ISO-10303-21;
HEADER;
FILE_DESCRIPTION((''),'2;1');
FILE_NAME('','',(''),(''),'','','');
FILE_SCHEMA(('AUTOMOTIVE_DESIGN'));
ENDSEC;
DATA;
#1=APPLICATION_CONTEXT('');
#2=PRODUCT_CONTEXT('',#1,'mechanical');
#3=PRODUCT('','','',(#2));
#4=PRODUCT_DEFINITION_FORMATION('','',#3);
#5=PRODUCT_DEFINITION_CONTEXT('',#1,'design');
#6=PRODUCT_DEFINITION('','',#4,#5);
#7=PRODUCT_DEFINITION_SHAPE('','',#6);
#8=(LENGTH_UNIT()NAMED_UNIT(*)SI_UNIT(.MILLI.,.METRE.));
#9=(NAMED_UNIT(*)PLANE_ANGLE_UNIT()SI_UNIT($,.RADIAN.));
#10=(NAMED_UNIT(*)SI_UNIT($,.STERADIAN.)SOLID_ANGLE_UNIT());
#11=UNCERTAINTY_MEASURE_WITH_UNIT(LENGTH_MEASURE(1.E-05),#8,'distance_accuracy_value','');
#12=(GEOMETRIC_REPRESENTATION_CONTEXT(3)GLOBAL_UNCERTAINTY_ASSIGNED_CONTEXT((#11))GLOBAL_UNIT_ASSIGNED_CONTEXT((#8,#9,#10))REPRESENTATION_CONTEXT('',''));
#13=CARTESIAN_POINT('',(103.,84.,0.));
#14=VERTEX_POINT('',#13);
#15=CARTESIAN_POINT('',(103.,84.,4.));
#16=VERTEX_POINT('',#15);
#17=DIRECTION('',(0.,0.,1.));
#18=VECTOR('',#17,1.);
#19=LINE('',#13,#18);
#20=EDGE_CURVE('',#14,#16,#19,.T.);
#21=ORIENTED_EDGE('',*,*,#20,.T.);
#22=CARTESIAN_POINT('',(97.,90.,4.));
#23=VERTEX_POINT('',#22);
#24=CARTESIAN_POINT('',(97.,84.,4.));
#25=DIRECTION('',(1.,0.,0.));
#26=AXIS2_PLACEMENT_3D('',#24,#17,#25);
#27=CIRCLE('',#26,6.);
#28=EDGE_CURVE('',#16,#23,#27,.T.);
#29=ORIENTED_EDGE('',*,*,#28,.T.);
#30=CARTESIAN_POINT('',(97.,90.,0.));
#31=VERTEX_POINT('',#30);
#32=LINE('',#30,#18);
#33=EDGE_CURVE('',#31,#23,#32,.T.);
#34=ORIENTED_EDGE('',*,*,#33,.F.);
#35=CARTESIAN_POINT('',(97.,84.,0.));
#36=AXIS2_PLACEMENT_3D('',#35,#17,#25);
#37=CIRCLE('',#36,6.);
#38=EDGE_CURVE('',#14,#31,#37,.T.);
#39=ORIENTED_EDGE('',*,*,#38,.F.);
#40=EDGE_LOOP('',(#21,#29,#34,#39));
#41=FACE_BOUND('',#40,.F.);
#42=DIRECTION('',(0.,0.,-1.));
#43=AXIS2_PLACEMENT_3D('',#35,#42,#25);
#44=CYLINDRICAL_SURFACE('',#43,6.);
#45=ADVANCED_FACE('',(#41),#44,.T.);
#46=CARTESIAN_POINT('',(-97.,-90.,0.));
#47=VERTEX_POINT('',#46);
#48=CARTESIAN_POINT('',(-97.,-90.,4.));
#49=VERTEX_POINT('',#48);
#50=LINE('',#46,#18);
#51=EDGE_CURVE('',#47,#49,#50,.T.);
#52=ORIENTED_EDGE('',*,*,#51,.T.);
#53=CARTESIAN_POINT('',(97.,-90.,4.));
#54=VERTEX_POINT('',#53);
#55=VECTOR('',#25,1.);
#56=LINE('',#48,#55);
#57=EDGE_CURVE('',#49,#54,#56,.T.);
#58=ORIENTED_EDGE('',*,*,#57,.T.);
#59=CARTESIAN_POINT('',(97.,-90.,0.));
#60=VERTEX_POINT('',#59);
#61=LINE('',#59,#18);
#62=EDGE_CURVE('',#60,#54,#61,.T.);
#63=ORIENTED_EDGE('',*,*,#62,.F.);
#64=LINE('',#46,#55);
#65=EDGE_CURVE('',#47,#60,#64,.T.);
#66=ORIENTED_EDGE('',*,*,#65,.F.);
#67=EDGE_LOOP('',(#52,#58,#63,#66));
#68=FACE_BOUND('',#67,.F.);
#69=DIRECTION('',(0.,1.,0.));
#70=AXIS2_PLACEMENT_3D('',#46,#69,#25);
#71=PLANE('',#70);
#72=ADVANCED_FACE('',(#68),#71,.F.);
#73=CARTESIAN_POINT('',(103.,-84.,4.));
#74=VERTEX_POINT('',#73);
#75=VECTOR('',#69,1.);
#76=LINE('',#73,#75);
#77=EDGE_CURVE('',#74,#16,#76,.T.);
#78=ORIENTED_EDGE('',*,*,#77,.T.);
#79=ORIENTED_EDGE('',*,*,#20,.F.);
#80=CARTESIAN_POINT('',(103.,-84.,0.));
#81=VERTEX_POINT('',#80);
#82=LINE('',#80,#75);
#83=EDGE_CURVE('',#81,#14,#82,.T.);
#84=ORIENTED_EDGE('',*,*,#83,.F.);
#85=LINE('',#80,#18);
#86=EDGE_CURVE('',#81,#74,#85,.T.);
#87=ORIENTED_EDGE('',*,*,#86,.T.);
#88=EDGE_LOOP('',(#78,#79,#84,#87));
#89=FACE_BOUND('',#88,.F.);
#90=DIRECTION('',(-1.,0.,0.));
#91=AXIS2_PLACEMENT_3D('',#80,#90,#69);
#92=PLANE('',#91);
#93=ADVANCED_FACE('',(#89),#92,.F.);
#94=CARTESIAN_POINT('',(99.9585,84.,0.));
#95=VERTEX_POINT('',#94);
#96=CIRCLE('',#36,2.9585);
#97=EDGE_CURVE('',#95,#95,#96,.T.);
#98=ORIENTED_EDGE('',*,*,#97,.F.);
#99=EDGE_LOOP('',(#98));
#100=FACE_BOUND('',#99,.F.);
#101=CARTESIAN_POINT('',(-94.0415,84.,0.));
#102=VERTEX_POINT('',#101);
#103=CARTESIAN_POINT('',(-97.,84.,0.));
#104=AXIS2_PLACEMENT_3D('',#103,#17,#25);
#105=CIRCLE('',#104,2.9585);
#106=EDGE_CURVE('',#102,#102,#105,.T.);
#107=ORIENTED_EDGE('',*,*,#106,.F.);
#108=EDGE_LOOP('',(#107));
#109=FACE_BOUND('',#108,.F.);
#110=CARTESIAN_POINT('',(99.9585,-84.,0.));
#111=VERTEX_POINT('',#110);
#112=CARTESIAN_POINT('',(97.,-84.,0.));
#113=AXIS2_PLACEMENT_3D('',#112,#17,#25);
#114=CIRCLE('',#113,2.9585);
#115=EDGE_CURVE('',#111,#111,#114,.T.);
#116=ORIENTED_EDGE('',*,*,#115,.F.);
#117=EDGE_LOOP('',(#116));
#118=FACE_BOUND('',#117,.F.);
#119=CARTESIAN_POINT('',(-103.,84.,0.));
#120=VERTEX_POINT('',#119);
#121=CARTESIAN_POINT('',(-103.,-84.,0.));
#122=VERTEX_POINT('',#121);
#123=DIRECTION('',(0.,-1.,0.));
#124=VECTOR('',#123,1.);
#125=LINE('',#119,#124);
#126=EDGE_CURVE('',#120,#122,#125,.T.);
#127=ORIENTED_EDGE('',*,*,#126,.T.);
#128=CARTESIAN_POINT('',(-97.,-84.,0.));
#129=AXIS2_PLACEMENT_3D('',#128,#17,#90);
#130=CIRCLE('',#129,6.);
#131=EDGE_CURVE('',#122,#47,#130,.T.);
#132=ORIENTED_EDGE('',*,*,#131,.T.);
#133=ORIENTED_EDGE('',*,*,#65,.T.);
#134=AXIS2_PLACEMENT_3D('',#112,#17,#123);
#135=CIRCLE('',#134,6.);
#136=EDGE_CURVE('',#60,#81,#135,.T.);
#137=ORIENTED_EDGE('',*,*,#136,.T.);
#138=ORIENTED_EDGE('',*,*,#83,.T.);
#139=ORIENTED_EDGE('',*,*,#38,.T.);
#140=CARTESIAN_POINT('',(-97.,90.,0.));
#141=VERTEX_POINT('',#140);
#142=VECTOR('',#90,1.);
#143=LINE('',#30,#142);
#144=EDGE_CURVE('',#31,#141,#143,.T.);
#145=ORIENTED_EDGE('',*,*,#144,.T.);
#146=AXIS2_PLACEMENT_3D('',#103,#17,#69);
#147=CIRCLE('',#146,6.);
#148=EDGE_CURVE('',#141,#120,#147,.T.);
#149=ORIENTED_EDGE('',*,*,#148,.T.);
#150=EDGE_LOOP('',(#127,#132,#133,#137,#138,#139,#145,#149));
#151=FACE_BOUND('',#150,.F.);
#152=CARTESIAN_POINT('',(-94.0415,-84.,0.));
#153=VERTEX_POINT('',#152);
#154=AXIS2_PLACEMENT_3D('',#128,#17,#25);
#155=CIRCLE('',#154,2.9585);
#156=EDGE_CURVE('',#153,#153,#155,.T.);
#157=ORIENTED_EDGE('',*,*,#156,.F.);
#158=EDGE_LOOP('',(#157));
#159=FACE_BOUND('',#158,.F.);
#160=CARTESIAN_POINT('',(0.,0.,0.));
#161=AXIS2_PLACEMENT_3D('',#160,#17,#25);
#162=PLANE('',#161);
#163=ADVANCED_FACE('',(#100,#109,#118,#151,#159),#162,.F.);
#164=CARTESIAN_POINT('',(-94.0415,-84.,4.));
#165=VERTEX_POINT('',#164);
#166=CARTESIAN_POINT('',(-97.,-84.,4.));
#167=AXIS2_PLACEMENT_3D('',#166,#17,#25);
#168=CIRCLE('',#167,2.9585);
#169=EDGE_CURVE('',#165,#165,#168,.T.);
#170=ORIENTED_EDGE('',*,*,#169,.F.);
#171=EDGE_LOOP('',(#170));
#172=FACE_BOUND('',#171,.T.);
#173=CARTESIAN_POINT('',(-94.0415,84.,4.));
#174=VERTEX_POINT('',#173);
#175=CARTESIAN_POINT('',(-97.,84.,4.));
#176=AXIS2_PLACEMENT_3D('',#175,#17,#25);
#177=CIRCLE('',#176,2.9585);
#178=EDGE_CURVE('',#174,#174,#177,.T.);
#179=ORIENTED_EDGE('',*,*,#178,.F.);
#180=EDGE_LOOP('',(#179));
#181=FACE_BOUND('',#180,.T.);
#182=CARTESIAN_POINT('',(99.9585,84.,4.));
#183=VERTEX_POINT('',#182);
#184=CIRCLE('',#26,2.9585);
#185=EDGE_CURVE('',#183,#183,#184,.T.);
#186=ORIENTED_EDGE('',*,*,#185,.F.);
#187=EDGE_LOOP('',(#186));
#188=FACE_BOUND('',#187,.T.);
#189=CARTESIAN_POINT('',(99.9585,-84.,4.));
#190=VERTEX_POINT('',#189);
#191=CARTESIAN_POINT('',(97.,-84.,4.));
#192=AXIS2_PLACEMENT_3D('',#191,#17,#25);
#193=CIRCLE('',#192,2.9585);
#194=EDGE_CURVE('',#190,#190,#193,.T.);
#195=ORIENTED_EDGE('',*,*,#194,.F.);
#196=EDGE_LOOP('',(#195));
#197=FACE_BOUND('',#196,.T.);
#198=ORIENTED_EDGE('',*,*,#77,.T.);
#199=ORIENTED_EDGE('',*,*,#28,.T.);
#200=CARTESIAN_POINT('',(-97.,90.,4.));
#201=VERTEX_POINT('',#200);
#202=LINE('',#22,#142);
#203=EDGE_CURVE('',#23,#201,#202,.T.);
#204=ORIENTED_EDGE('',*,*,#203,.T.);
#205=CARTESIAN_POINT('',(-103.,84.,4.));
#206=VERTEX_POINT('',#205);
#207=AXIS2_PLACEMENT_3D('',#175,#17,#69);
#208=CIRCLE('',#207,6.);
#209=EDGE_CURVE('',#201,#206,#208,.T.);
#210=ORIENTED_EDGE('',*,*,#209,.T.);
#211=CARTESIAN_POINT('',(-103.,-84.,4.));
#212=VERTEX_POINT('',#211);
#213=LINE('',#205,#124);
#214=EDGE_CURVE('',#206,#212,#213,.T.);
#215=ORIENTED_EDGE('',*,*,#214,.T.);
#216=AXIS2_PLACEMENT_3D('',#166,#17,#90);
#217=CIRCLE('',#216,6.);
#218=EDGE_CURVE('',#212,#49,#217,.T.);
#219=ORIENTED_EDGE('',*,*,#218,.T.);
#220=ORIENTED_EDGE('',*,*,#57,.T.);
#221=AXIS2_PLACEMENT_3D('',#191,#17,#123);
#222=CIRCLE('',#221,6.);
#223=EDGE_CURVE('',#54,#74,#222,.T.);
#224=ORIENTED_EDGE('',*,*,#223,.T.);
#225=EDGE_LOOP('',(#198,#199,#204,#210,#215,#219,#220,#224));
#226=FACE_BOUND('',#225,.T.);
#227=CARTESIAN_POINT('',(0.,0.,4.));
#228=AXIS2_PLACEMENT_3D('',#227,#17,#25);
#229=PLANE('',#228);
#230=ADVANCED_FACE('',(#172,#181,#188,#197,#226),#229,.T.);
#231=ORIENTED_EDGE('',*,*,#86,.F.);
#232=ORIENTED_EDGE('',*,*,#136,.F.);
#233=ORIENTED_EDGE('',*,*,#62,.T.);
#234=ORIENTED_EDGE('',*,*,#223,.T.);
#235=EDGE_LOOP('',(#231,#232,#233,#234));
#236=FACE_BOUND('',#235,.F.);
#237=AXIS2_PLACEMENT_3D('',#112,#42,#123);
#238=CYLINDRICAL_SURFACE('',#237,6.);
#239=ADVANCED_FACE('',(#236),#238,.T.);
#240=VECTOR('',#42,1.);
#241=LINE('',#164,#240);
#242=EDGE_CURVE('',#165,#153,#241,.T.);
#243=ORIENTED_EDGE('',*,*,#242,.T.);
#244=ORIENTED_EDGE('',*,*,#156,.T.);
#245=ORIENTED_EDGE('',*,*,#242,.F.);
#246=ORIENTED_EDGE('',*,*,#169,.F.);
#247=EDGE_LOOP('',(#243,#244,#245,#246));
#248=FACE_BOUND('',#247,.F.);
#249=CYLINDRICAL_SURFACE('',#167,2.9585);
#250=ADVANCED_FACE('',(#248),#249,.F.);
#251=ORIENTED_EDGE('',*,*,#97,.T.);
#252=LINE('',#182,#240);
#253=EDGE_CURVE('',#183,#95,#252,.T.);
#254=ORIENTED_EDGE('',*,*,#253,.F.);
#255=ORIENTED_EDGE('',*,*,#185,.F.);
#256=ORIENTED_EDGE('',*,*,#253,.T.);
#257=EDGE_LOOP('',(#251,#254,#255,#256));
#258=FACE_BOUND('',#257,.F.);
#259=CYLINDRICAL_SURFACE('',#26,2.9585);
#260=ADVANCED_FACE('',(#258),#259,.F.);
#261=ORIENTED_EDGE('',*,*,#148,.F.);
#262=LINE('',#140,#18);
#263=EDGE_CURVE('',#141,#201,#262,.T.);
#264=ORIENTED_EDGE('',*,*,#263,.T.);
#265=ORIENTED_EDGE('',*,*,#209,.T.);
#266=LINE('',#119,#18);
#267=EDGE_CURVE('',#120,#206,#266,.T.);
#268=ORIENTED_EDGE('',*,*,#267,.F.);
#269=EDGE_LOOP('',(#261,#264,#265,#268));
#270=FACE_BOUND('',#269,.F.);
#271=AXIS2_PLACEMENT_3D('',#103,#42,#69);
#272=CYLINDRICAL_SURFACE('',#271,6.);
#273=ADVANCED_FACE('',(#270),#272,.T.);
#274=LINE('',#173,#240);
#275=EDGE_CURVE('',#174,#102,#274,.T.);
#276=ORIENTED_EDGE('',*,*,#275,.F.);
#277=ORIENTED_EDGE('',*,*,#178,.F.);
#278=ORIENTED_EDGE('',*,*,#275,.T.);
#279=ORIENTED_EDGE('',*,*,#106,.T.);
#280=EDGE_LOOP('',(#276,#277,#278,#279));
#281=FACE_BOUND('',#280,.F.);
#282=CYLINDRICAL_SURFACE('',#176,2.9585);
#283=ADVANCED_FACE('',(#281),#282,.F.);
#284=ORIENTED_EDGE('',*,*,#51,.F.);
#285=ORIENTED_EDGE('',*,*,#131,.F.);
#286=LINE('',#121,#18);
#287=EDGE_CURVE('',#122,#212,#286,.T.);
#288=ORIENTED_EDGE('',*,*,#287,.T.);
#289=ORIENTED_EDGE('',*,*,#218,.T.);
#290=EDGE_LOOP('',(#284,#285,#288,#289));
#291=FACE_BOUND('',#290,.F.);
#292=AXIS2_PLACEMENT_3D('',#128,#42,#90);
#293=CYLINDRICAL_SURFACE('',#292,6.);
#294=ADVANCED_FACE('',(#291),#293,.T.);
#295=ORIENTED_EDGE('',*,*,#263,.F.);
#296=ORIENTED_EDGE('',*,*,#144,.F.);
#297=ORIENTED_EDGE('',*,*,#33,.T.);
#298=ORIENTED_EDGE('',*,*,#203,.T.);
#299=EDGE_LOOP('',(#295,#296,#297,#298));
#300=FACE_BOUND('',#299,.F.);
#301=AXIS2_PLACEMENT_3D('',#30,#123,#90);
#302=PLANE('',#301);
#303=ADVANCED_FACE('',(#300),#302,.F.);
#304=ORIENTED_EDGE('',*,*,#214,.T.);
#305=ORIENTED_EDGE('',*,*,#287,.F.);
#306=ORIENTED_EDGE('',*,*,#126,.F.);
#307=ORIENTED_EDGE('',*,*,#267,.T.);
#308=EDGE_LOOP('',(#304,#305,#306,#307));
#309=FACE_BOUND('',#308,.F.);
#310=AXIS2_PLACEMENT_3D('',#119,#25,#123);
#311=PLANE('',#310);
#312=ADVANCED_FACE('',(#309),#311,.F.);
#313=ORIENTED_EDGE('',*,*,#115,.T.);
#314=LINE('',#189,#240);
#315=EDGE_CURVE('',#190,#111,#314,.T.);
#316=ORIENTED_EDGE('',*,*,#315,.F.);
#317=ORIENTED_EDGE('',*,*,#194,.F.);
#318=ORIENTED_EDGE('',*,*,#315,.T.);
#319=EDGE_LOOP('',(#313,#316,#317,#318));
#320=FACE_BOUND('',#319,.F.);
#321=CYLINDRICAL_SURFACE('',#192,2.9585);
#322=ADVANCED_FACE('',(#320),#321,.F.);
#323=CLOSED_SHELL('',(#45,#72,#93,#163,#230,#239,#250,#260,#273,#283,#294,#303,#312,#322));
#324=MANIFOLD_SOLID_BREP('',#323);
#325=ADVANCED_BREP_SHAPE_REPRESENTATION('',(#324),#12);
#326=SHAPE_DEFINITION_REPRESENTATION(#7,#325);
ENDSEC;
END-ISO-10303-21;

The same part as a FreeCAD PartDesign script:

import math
import FreeCAD as App
import Part
import Sketcher

V = App.Vector
Q = App.Units.Quantity

doc = App.newDocument("Part")
body = doc.addObject("PartDesign::Body", "Body")

sketch1 = body.newObject("Sketcher::SketchObject", "Sketch")
sketch1.AttachmentSupport = (doc.getObject("XY_Plane"), [""])
sketch1.MapMode = "FlatFace"
sketch1.addGeometry(Part.LineSegment(V(-97, -90, 0), V(97, -90, 0)), False)
sketch1.addGeometry(Part.ArcOfCircle(Part.Circle(V(97, -84, 0), V(0, 0, 1), 6), math.radians(-90), math.radians(0)), False)
sketch1.addGeometry(Part.LineSegment(V(103, -84, 0), V(103, 84, 0)), False)
sketch1.addGeometry(Part.ArcOfCircle(Part.Circle(V(97, 84, 0), V(0, 0, 1), 6), math.radians(0), math.radians(90)), False)
sketch1.addGeometry(Part.LineSegment(V(97, 90, 0), V(-97, 90, 0)), False)
sketch1.addGeometry(Part.ArcOfCircle(Part.Circle(V(-97, 84, 0), V(0, 0, 1), 6), math.radians(90), math.radians(180)), False)
sketch1.addGeometry(Part.LineSegment(V(-103, 84, 0), V(-103, -84, 0)), False)
sketch1.addGeometry(Part.ArcOfCircle(Part.Circle(V(-97, -84, 0), V(0, 0, 1), 6), math.radians(180), math.radians(270)), False)
sketch1.addGeometry(Part.Circle(V(-97, -84, 0), V(0, 0, 1), 2.5), False)
sketch1.addGeometry(Part.Circle(V(97, -84, 0), V(0, 0, 1), 2.5), False)
sketch1.addGeometry(Part.Circle(V(-97, 84, 0), V(0, 0, 1), 2.5), False)
sketch1.addGeometry(Part.Circle(V(97, 84, 0), V(0, 0, 1), 2.5), False)
sketch1.addConstraint(Sketcher.Constraint("Tangent", 0, 2, 1, 1))
sketch1.addConstraint(Sketcher.Constraint("Tangent", 1, 2, 2, 1))
sketch1.addConstraint(Sketcher.Constraint("Tangent", 2, 2, 3, 1))
sketch1.addConstraint(Sketcher.Constraint("Tangent", 3, 2, 4, 1))
sketch1.addConstraint(Sketcher.Constraint("Tangent", 4, 2, 5, 1))
sketch1.addConstraint(Sketcher.Constraint("Tangent", 5, 2, 6, 1))
sketch1.addConstraint(Sketcher.Constraint("Tangent", 6, 2, 7, 1))
sketch1.addConstraint(Sketcher.Constraint("Tangent", 7, 2, 0, 1))
sketch1.addConstraint(Sketcher.Constraint("Horizontal", 0))
sketch1.addConstraint(Sketcher.Constraint("Vertical", 2))
sketch1.addConstraint(Sketcher.Constraint("Horizontal", 4))
sketch1.addConstraint(Sketcher.Constraint("Vertical", 6))
sketch1.addConstraint(Sketcher.Constraint("Coincident", 8, 3, 7, 3))
sketch1.addConstraint(Sketcher.Constraint("Coincident", 9, 3, 1, 3))
sketch1.addConstraint(Sketcher.Constraint("Coincident", 10, 3, 5, 3))
sketch1.addConstraint(Sketcher.Constraint("Coincident", 11, 3, 3, 3))
sketch1.addConstraint(Sketcher.Constraint("Equal", 1, 3))
sketch1.addConstraint(Sketcher.Constraint("Equal", 3, 5))
sketch1.addConstraint(Sketcher.Constraint("Equal", 5, 7))
sketch1.addConstraint(Sketcher.Constraint("Equal", 8, 9))
sketch1.addConstraint(Sketcher.Constraint("Equal", 9, 10))
sketch1.addConstraint(Sketcher.Constraint("Equal", 10, 11))
sketch1.addConstraint(Sketcher.Constraint("Symmetric", 1, 3, 5, 3, -1, 1))
sketch1.addConstraint(Sketcher.Constraint("Radius", 1, Q("6 mm")))
sketch1.addConstraint(Sketcher.Constraint("DistanceX", 0, 1, 0, 2, Q("194 mm")))
sketch1.addConstraint(Sketcher.Constraint("DistanceY", 2, 1, 2, 2, Q("168 mm")))
sketch1.addConstraint(Sketcher.Constraint("Diameter", 8, Q("4.917 mm")))
pad1 = body.newObject("PartDesign::Pad", "Pad")
pad1.Profile = sketch1
pad1.Length = 4

sketch2 = body.newObject("Sketcher::SketchObject", "Sketch001")
sketch2.AttachmentSupport = (doc.getObject("XY_Plane"), [""])
sketch2.MapMode = "FlatFace"
sketch2.AttachmentOffset = App.Placement(V(0, 0, 4), App.Rotation())
sketch2.addGeometry(Part.Circle(V(97, 84, 0), V(0, 0, 1), 3), False)
sketch2.addGeometry(Part.Circle(V(-97, 84, 0), V(0, 0, 1), 3), False)
sketch2.addGeometry(Part.Circle(V(-97, -84, 0), V(0, 0, 1), 3), False)
sketch2.addGeometry(Part.Circle(V(97, -84, 0), V(0, 0, 1), 3), False)
sketch2.addConstraint(Sketcher.Constraint("Equal", 0, 1))
sketch2.addConstraint(Sketcher.Constraint("Equal", 1, 2))
sketch2.addConstraint(Sketcher.Constraint("Equal", 2, 3))
sketch2.addConstraint(Sketcher.Constraint("Symmetric", 0, 3, 2, 3, -1, 1))
sketch2.addConstraint(Sketcher.Constraint("Symmetric", 1, 3, 3, 3, -1, 1))
sketch2.addConstraint(Sketcher.Constraint("Symmetric", 0, 3, 1, 3, -2))
sketch2.addConstraint(Sketcher.Constraint("Diameter", 0, Q("5.917 mm")))
sketch2.addConstraint(Sketcher.Constraint("DistanceX", -1, 1, 0, 3, Q("97 mm")))
sketch2.addConstraint(Sketcher.Constraint("DistanceY", -1, 1, 0, 3, Q("84 mm")))
pocket1 = body.newObject("PartDesign::Pocket", "Pocket")
pocket1.Profile = sketch2
pocket1.Length = 4

doc.recompute()
